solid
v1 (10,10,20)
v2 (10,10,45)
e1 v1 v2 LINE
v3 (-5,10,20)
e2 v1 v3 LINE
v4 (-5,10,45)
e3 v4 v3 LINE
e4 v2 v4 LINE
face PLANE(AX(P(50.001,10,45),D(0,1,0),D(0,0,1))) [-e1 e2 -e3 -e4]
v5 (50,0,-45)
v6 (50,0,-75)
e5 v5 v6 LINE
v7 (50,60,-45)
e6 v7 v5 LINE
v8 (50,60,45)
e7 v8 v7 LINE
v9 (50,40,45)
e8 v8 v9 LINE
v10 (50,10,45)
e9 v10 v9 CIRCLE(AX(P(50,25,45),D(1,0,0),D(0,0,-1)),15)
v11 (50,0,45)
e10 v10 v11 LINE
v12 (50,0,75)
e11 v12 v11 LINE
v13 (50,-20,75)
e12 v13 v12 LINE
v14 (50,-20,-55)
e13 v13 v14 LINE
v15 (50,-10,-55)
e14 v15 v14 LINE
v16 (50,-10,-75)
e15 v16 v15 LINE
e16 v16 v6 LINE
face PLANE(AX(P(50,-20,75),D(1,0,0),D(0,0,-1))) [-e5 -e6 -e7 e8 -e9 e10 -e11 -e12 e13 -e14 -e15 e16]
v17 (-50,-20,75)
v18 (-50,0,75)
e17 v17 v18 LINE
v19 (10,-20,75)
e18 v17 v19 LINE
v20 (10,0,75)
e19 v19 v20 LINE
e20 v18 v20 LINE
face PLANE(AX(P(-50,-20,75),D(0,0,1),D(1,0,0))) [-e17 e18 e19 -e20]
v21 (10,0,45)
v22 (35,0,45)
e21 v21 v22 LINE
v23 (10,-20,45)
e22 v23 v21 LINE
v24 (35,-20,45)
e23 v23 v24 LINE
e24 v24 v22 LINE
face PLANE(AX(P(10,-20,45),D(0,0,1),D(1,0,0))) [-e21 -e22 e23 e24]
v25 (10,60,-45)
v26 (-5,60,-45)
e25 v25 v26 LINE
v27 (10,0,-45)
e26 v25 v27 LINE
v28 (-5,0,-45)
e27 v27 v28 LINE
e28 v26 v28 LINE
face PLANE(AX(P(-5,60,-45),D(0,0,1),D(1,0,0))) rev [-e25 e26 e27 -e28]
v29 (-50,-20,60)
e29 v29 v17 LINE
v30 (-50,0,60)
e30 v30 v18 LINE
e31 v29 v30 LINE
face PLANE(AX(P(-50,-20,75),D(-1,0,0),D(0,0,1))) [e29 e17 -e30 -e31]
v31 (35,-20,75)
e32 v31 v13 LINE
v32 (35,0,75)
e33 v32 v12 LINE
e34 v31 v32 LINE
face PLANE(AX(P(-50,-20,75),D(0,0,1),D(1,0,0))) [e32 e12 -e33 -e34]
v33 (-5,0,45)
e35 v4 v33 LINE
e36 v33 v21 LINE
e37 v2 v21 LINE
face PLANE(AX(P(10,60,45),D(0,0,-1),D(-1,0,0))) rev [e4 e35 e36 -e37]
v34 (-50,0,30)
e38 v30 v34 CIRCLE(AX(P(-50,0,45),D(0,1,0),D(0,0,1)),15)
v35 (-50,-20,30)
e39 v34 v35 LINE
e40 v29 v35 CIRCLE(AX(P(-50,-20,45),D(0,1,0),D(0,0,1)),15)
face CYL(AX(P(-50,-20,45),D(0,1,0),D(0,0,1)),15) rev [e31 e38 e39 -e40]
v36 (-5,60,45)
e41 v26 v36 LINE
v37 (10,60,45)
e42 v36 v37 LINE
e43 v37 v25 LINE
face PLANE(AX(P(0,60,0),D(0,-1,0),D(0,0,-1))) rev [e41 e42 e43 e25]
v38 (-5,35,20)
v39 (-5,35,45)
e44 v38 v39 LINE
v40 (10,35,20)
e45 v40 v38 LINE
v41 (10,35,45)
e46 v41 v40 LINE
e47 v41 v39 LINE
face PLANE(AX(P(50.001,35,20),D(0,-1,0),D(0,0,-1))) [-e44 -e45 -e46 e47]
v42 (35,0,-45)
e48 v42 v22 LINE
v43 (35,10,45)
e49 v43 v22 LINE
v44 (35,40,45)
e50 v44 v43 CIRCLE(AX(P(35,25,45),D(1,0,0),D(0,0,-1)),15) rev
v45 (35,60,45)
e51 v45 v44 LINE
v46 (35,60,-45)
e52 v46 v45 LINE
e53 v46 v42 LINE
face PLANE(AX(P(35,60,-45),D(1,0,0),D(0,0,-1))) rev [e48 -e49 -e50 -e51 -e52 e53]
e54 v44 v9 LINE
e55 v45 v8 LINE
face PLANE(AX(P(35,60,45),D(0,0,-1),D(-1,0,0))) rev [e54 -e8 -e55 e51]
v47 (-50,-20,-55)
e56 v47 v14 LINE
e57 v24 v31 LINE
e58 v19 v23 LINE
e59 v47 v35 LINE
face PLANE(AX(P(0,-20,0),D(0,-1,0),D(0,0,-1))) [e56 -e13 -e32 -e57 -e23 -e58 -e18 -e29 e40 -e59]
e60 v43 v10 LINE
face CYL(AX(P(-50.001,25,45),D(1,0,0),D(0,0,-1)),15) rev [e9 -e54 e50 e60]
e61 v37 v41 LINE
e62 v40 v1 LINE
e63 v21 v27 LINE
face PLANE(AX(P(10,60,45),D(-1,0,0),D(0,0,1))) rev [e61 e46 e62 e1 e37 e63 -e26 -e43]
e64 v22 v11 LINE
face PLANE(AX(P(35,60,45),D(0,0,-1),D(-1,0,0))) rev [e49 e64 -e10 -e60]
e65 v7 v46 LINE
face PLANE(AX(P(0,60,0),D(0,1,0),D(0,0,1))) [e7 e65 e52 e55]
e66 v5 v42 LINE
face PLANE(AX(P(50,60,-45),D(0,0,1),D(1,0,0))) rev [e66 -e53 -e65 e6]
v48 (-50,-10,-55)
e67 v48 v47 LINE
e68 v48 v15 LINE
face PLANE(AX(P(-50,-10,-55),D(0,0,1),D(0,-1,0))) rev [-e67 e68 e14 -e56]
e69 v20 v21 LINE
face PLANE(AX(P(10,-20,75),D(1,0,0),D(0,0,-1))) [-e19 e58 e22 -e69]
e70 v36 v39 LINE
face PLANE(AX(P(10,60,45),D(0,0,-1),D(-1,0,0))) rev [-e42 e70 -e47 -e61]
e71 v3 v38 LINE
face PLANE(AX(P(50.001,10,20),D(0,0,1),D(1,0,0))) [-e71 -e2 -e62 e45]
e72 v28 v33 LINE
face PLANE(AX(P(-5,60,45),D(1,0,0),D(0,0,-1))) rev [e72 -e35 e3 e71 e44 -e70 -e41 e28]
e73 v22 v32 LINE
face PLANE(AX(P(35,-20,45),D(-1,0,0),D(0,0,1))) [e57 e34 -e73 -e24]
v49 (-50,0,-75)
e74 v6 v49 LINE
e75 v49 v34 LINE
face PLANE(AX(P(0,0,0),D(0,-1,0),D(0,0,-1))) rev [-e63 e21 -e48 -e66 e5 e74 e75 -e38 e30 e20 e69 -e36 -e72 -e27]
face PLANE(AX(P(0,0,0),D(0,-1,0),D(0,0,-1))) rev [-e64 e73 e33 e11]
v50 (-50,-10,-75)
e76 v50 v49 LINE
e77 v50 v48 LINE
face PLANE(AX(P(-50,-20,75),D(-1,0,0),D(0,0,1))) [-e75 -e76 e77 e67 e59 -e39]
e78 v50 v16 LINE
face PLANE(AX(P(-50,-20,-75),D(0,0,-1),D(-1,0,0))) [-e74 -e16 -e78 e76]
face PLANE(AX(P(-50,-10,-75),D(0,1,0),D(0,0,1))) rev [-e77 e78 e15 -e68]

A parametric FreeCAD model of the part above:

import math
import FreeCAD as App
import Part
import Sketcher
Q = App.Units.Quantity

doc = App.newDocument("Part")
body = doc.addObject("PartDesign::Body", "Body")

sketch1 = body.newObject("Sketcher::SketchObject", "Sketch")
sketch1.AttachmentSupport = (doc.getObject("XZ_Plane"), [""])
sketch1.MapMode = "FlatFace"
sketch1.addGeometry(Part.LineSegment(App.Vector(-50, -75, 0), App.Vector(-50, 75, 0)), False)
sketch1.addGeometry(Part.LineSegment(App.Vector(-50, 75, 0), App.Vector(50, 75, 0)), False)
sketch1.addGeometry(Part.LineSegment(App.Vector(50, 75, 0), App.Vector(50, -75, 0)), False)
sketch1.addGeometry(Part.LineSegment(App.Vector(50, -75, 0), App.Vector(-50, -75, 0)), False)
sketch1.addConstraint(Sketcher.Constraint("Coincident", 0, 2, 1, 1))
sketch1.addConstraint(Sketcher.Constraint("Coincident", 1, 2, 2, 1))
sketch1.addConstraint(Sketcher.Constraint("Coincident", 2, 2, 3, 1))
sketch1.addConstraint(Sketcher.Constraint("Coincident", 3, 2, 0, 1))
sketch1.addConstraint(Sketcher.Constraint("Vertical", 0))
sketch1.addConstraint(Sketcher.Constraint("Horizontal", 1))
sketch1.addConstraint(Sketcher.Constraint("Vertical", 2))
sketch1.addConstraint(Sketcher.Constraint("Horizontal", 3))
sketch1.addConstraint(Sketcher.Constraint("Symmetric", 0, 2, 2, 2, -1, 1))
sketch1.addConstraint(Sketcher.Constraint("DistanceX", 1, 1, 1, 2, Q("100 mm")))
sketch1.addConstraint(Sketcher.Constraint("DistanceY", 0, 1, 0, 2, Q("150 mm")))
pad1 = body.newObject("PartDesign::Pad", "Pad")
pad1.Profile = sketch1
pad1.Length = 20

sketch2 = body.newObject("Sketcher::SketchObject", "Sketch001")
sketch2.AttachmentSupport = (doc.getObject("XZ_Plane"), [""])
sketch2.MapMode = "FlatFace"
sketch2.addGeometry(Part.Circle(App.Vector(-50, 45, 0), App.Vector(0, 0, 1), 15), False)
sketch2.addConstraint(Sketcher.Constraint("Diameter", 0, Q("30 mm")))
sketch2.addConstraint(Sketcher.Constraint("DistanceX", 0, 3, -1, 1, Q("50 mm")))
sketch2.addConstraint(Sketcher.Constraint("DistanceY", -1, 1, 0, 3, Q("45 mm")))
pocket1 = body.newObject("PartDesign::Pocket", "Pocket")
pocket1.Profile = sketch2
pocket1.Length = 20
pocket1.Reversed = True

sketch3 = body.newObject("Sketcher::SketchObject", "Sketch002")
sketch3.AttachmentSupport = (doc.getObject("XZ_Plane"), [""])
sketch3.MapMode = "FlatFace"
sketch3.addGeometry(Part.LineSegment(App.Vector(10, 45, 0), App.Vector(10, 75, 0)), False)
sketch3.addGeometry(Part.LineSegment(App.Vector(10, 75, 0), App.Vector(35, 75, 0)), False)
sketch3.addGeometry(Part.LineSegment(App.Vector(35, 75, 0), App.Vector(35, 45, 0)), False)
sketch3.addGeometry(Part.LineSegment(App.Vector(35, 45, 0), App.Vector(10, 45, 0)), False)
sketch3.addConstraint(Sketcher.Constraint("Coincident", 0, 2, 1, 1))
sketch3.addConstraint(Sketcher.Constraint("Coincident", 1, 2, 2, 1))
sketch3.addConstraint(Sketcher.Constraint("Coincident", 2, 2, 3, 1))
sketch3.addConstraint(Sketcher.Constraint("Coincident", 3, 2, 0, 1))
sketch3.addConstraint(Sketcher.Constraint("Vertical", 0))
sketch3.addConstraint(Sketcher.Constraint("Horizontal", 1))
sketch3.addConstraint(Sketcher.Constraint("Vertical", 2))
sketch3.addConstraint(Sketcher.Constraint("Horizontal", 3))
sketch3.addConstraint(Sketcher.Constraint("DistanceX", 1, 1, 1, 2, Q("25 mm")))
sketch3.addConstraint(Sketcher.Constraint("DistanceY", 0, 1, 0, 2, Q("30 mm")))
sketch3.addConstraint(Sketcher.Constraint("DistanceX", -1, 1, 0, 2, Q("10 mm")))
sketch3.addConstraint(Sketcher.Constraint("DistanceY", -1, 1, 0, 2, Q("75 mm")))
pocket2 = body.newObject("PartDesign::Pocket", "Pocket001")
pocket2.Profile = sketch3
pocket2.Length = 20
pocket2.Reversed = True

sketch4 = body.newObject("Sketcher::SketchObject", "Sketch003")
sketch4.AttachmentSupport = (doc.getObject("XZ_Plane"), [""])
sketch4.MapMode = "FlatFace"
sketch4.addGeometry(Part.LineSegment(App.Vector(-5, -45, 0), App.Vector(-5, 45, 0)), False)
sketch4.addGeometry(Part.LineSegment(App.Vector(-5, 45, 0), App.Vector(10, 45, 0)), False)
sketch4.addGeometry(Part.LineSegment(App.Vector(10, 45, 0), App.Vector(10, -45, 0)), False)
sketch4.addGeometry(Part.LineSegment(App.Vector(10, -45, 0), App.Vector(-5, -45, 0)), False)
sketch4.addConstraint(Sketcher.Constraint("Coincident", 0, 2, 1, 1))
sketch4.addConstraint(Sketcher.Constraint("Coincident", 1, 2, 2, 1))
sketch4.addConstraint(Sketcher.Constraint("Coincident", 2, 2, 3, 1))
sketch4.addConstraint(Sketcher.Constraint("Coincident", 3, 2, 0, 1))
sketch4.addConstraint(Sketcher.Constraint("Vertical", 0))
sketch4.addConstraint(Sketcher.Constraint("Horizontal", 1))
sketch4.addConstraint(Sketcher.Constraint("Vertical", 2))
sketch4.addConstraint(Sketcher.Constraint("Horizontal", 3))
sketch4.addConstraint(Sketcher.Constraint("DistanceX", 1, 1, 1, 2, Q("15 mm")))
sketch4.addConstraint(Sketcher.Constraint("DistanceY", 0, 1, 0, 2, Q("90 mm")))
sketch4.addConstraint(Sketcher.Constraint("DistanceX", 0, 2, -1, 1, Q("5 mm")))
sketch4.addConstraint(Sketcher.Constraint("DistanceY", -1, 1, 0, 2, Q("45 mm")))
pad2 = body.newObject("PartDesign::Pad", "Pad001")
pad2.Profile = sketch4
pad2.Length = 60
pad2.Reversed = True

sketch5 = body.newObject("Sketcher::SketchObject", "Sketch004")
sketch5.AttachmentSupport = (doc.getObject("XZ_Plane"), [""])
sketch5.MapMode = "FlatFace"
sketch5.addGeometry(Part.LineSegment(App.Vector(35, -45, 0), App.Vector(35, 45, 0)), False)
sketch5.addGeometry(Part.LineSegment(App.Vector(35, 45, 0), App.Vector(50, 45, 0)), False)
sketch5.addGeometry(Part.LineSegment(App.Vector(50, 45, 0), App.Vector(50, -45, 0)), False)
sketch5.addGeometry(Part.LineSegment(App.Vector(50, -45, 0), App.Vector(35, -45, 0)), False)
sketch5.addConstraint(Sketcher.Constraint("Coincident", 0, 2, 1, 1))
sketch5.addConstraint(Sketcher.Constraint("Coincident", 1, 2, 2, 1))
sketch5.addConstraint(Sketcher.Constraint("Coincident", 2, 2, 3, 1))
sketch5.addConstraint(Sketcher.Constraint("Coincident", 3, 2, 0, 1))
sketch5.addConstraint(Sketcher.Constraint("Vertical", 0))
sketch5.addConstraint(Sketcher.Constraint("Horizontal", 1))
sketch5.addConstraint(Sketcher.Constraint("Vertical", 2))
sketch5.addConstraint(Sketcher.Constraint("Horizontal", 3))
sketch5.addConstraint(Sketcher.Constraint("DistanceX", 1, 1, 1, 2, Q("15 mm")))
sketch5.addConstraint(Sketcher.Constraint("DistanceY", 0, 1, 0, 2, Q("90 mm")))
sketch5.addConstraint(Sketcher.Constraint("DistanceX", -1, 1, 0, 2, Q("35 mm")))
sketch5.addConstraint(Sketcher.Constraint("DistanceY", -1, 1, 0, 2, Q("45 mm")))
pad3 = body.newObject("PartDesign::Pad", "Pad002")
pad3.Profile = sketch5
pad3.Length = 60
pad3.Reversed = True

sketch6 = body.newObject("Sketcher::SketchObject", "Sketch005")
sketch6.AttachmentSupport = (doc.getObject("YZ_Plane"), [""])
sketch6.MapMode = "FlatFace"
sketch6.AttachmentOffset = App.Placement(App.Vector(0, 0, 50), App.Rotation())
sketch6.addGeometry(Part.LineSegment(App.Vector(40, 45, 0), App.Vector(10, 45, 0)), False)
sketch6.addGeometry(Part.ArcOfCircle(Part.Circle(App.Vector(25, 45, 0), App.Vector(0, 0, 1), 15), math.radians(180), math.radians(360)), False)
sketch6.addConstraint(Sketcher.Constraint("Coincident", 0, 1, 1, 2))
sketch6.addConstraint(Sketcher.Constraint("Coincident", 1, 1, 0, 2))
sketch6.addConstraint(Sketcher.Constraint("Horizontal", 0))
sketch6.addConstraint(Sketcher.Constraint("Horizontal", 1, 3, 0, 1))
sketch6.addConstraint(Sketcher.Constraint("Radius", 1, Q("15 mm")))
sketch6.addConstraint(Sketcher.Constraint("DistanceX", -1, 1, 1, 3, Q("25 mm")))
sketch6.addConstraint(Sketcher.Constraint("DistanceY", -1, 1, 1, 3, Q("45 mm")))
pocket3 = body.newObject("PartDesign::Pocket", "Pocket002")
pocket3.Profile = sketch6
pocket3.Type = "UpToFirst"

sketch7 = body.newObject("Sketcher::SketchObject", "Sketch006")
sketch7.AttachmentSupport = (doc.getObject("YZ_Plane"), [""])
sketch7.MapMode = "FlatFace"
sketch7.AttachmentOffset = App.Placement(App.Vector(0, 0, -5), App.Rotation())
sketch7.addGeometry(Part.LineSegment(App.Vector(35, 20, 0), App.Vector(10, 20, 0)), False)
sketch7.addGeometry(Part.LineSegment(App.Vector(10, 20, 0), App.Vector(10, 45, 0)), False)
sketch7.addGeometry(Part.LineSegment(App.Vector(10, 45, 0), App.Vector(35, 45, 0)), False)
sketch7.addGeometry(Part.LineSegment(App.Vector(35, 45, 0), App.Vector(35, 20, 0)), False)
sketch7.addConstraint(Sketcher.Constraint("Coincident", 0, 2, 1, 1))
sketch7.addConstraint(Sketcher.Constraint("Coincident", 1, 2, 2, 1))
sketch7.addConstraint(Sketcher.Constraint("Coincident", 2, 2, 3, 1))
sketch7.addConstraint(Sketcher.Constraint("Coincident", 3, 2, 0, 1))
sketch7.addConstraint(Sketcher.Constraint("Horizontal", 0))
sketch7.addConstraint(Sketcher.Constraint("Vertical", 1))
sketch7.addConstraint(Sketcher.Constraint("Horizontal", 2))
sketch7.addConstraint(Sketcher.Constraint("Vertical", 3))
sketch7.addConstraint(Sketcher.Constraint("Equal", 2, 1))
sketch7.addConstraint(Sketcher.Constraint("DistanceX", 0, 2, 0, 1, Q("25 mm")))
sketch7.addConstraint(Sketcher.Constraint("DistanceX", -1, 1, 0, 2, Q("10 mm")))
sketch7.addConstraint(Sketcher.Constraint("DistanceY", -1, 1, 0, 2, Q("20 mm")))
pocket4 = body.newObject("PartDesign::Pocket", "Pocket003")
pocket4.Profile = sketch7
pocket4.Type = "UpToFirst"
pocket4.Reversed = True

sketch8 = body.newObject("Sketcher::SketchObject", "Sketch007")
sketch8.AttachmentSupport = (doc.getObject("YZ_Plane"), [""])
sketch8.MapMode = "FlatFace"
sketch8.AttachmentOffset = App.Placement(App.Vector(0, 0, 50), App.Rotation())
sketch8.addGeometry(Part.LineSegment(App.Vector(-10, -55, 0), App.Vector(-20, -55, 0)), False)
sketch8.addGeometry(Part.LineSegment(App.Vector(-20, -55, 0), App.Vector(-20, -75, 0)), False)
sketch8.addGeometry(Part.LineSegment(App.Vector(-20, -75, 0), App.Vector(-10, -75, 0)), False)
sketch8.addGeometry(Part.LineSegment(App.Vector(-10, -75, 0), App.Vector(-10, -55, 0)), False)
sketch8.addConstraint(Sketcher.Constraint("Coincident", 0, 2, 1, 1))
sketch8.addConstraint(Sketcher.Constraint("Coincident", 1, 2, 2, 1))
sketch8.addConstraint(Sketcher.Constraint("Coincident", 2, 2, 3, 1))
sketch8.addConstraint(Sketcher.Constraint("Coincident", 3, 2, 0, 1))
sketch8.addConstraint(Sketcher.Constraint("Horizontal", 0))
sketch8.addConstraint(Sketcher.Constraint("Vertical", 1))
sketch8.addConstraint(Sketcher.Constraint("Horizontal", 2))
sketch8.addConstraint(Sketcher.Constraint("Vertical", 3))
sketch8.addConstraint(Sketcher.Constraint("DistanceX", 0, 2, 0, 1, Q("10 mm")))
sketch8.addConstraint(Sketcher.Constraint("DistanceY", 1, 2, 1, 1, Q("20 mm")))
sketch8.addConstraint(Sketcher.Constraint("DistanceX", 0, 2, -1, 1, Q("20 mm")))
sketch8.addConstraint(Sketcher.Constraint("DistanceY", 0, 2, -1, 1, Q("55 mm")))
pocket5 = body.newObject("PartDesign::Pocket", "Pocket004")
pocket5.Profile = sketch8
pocket5.Type = "ThroughAll"

doc.recompute()
